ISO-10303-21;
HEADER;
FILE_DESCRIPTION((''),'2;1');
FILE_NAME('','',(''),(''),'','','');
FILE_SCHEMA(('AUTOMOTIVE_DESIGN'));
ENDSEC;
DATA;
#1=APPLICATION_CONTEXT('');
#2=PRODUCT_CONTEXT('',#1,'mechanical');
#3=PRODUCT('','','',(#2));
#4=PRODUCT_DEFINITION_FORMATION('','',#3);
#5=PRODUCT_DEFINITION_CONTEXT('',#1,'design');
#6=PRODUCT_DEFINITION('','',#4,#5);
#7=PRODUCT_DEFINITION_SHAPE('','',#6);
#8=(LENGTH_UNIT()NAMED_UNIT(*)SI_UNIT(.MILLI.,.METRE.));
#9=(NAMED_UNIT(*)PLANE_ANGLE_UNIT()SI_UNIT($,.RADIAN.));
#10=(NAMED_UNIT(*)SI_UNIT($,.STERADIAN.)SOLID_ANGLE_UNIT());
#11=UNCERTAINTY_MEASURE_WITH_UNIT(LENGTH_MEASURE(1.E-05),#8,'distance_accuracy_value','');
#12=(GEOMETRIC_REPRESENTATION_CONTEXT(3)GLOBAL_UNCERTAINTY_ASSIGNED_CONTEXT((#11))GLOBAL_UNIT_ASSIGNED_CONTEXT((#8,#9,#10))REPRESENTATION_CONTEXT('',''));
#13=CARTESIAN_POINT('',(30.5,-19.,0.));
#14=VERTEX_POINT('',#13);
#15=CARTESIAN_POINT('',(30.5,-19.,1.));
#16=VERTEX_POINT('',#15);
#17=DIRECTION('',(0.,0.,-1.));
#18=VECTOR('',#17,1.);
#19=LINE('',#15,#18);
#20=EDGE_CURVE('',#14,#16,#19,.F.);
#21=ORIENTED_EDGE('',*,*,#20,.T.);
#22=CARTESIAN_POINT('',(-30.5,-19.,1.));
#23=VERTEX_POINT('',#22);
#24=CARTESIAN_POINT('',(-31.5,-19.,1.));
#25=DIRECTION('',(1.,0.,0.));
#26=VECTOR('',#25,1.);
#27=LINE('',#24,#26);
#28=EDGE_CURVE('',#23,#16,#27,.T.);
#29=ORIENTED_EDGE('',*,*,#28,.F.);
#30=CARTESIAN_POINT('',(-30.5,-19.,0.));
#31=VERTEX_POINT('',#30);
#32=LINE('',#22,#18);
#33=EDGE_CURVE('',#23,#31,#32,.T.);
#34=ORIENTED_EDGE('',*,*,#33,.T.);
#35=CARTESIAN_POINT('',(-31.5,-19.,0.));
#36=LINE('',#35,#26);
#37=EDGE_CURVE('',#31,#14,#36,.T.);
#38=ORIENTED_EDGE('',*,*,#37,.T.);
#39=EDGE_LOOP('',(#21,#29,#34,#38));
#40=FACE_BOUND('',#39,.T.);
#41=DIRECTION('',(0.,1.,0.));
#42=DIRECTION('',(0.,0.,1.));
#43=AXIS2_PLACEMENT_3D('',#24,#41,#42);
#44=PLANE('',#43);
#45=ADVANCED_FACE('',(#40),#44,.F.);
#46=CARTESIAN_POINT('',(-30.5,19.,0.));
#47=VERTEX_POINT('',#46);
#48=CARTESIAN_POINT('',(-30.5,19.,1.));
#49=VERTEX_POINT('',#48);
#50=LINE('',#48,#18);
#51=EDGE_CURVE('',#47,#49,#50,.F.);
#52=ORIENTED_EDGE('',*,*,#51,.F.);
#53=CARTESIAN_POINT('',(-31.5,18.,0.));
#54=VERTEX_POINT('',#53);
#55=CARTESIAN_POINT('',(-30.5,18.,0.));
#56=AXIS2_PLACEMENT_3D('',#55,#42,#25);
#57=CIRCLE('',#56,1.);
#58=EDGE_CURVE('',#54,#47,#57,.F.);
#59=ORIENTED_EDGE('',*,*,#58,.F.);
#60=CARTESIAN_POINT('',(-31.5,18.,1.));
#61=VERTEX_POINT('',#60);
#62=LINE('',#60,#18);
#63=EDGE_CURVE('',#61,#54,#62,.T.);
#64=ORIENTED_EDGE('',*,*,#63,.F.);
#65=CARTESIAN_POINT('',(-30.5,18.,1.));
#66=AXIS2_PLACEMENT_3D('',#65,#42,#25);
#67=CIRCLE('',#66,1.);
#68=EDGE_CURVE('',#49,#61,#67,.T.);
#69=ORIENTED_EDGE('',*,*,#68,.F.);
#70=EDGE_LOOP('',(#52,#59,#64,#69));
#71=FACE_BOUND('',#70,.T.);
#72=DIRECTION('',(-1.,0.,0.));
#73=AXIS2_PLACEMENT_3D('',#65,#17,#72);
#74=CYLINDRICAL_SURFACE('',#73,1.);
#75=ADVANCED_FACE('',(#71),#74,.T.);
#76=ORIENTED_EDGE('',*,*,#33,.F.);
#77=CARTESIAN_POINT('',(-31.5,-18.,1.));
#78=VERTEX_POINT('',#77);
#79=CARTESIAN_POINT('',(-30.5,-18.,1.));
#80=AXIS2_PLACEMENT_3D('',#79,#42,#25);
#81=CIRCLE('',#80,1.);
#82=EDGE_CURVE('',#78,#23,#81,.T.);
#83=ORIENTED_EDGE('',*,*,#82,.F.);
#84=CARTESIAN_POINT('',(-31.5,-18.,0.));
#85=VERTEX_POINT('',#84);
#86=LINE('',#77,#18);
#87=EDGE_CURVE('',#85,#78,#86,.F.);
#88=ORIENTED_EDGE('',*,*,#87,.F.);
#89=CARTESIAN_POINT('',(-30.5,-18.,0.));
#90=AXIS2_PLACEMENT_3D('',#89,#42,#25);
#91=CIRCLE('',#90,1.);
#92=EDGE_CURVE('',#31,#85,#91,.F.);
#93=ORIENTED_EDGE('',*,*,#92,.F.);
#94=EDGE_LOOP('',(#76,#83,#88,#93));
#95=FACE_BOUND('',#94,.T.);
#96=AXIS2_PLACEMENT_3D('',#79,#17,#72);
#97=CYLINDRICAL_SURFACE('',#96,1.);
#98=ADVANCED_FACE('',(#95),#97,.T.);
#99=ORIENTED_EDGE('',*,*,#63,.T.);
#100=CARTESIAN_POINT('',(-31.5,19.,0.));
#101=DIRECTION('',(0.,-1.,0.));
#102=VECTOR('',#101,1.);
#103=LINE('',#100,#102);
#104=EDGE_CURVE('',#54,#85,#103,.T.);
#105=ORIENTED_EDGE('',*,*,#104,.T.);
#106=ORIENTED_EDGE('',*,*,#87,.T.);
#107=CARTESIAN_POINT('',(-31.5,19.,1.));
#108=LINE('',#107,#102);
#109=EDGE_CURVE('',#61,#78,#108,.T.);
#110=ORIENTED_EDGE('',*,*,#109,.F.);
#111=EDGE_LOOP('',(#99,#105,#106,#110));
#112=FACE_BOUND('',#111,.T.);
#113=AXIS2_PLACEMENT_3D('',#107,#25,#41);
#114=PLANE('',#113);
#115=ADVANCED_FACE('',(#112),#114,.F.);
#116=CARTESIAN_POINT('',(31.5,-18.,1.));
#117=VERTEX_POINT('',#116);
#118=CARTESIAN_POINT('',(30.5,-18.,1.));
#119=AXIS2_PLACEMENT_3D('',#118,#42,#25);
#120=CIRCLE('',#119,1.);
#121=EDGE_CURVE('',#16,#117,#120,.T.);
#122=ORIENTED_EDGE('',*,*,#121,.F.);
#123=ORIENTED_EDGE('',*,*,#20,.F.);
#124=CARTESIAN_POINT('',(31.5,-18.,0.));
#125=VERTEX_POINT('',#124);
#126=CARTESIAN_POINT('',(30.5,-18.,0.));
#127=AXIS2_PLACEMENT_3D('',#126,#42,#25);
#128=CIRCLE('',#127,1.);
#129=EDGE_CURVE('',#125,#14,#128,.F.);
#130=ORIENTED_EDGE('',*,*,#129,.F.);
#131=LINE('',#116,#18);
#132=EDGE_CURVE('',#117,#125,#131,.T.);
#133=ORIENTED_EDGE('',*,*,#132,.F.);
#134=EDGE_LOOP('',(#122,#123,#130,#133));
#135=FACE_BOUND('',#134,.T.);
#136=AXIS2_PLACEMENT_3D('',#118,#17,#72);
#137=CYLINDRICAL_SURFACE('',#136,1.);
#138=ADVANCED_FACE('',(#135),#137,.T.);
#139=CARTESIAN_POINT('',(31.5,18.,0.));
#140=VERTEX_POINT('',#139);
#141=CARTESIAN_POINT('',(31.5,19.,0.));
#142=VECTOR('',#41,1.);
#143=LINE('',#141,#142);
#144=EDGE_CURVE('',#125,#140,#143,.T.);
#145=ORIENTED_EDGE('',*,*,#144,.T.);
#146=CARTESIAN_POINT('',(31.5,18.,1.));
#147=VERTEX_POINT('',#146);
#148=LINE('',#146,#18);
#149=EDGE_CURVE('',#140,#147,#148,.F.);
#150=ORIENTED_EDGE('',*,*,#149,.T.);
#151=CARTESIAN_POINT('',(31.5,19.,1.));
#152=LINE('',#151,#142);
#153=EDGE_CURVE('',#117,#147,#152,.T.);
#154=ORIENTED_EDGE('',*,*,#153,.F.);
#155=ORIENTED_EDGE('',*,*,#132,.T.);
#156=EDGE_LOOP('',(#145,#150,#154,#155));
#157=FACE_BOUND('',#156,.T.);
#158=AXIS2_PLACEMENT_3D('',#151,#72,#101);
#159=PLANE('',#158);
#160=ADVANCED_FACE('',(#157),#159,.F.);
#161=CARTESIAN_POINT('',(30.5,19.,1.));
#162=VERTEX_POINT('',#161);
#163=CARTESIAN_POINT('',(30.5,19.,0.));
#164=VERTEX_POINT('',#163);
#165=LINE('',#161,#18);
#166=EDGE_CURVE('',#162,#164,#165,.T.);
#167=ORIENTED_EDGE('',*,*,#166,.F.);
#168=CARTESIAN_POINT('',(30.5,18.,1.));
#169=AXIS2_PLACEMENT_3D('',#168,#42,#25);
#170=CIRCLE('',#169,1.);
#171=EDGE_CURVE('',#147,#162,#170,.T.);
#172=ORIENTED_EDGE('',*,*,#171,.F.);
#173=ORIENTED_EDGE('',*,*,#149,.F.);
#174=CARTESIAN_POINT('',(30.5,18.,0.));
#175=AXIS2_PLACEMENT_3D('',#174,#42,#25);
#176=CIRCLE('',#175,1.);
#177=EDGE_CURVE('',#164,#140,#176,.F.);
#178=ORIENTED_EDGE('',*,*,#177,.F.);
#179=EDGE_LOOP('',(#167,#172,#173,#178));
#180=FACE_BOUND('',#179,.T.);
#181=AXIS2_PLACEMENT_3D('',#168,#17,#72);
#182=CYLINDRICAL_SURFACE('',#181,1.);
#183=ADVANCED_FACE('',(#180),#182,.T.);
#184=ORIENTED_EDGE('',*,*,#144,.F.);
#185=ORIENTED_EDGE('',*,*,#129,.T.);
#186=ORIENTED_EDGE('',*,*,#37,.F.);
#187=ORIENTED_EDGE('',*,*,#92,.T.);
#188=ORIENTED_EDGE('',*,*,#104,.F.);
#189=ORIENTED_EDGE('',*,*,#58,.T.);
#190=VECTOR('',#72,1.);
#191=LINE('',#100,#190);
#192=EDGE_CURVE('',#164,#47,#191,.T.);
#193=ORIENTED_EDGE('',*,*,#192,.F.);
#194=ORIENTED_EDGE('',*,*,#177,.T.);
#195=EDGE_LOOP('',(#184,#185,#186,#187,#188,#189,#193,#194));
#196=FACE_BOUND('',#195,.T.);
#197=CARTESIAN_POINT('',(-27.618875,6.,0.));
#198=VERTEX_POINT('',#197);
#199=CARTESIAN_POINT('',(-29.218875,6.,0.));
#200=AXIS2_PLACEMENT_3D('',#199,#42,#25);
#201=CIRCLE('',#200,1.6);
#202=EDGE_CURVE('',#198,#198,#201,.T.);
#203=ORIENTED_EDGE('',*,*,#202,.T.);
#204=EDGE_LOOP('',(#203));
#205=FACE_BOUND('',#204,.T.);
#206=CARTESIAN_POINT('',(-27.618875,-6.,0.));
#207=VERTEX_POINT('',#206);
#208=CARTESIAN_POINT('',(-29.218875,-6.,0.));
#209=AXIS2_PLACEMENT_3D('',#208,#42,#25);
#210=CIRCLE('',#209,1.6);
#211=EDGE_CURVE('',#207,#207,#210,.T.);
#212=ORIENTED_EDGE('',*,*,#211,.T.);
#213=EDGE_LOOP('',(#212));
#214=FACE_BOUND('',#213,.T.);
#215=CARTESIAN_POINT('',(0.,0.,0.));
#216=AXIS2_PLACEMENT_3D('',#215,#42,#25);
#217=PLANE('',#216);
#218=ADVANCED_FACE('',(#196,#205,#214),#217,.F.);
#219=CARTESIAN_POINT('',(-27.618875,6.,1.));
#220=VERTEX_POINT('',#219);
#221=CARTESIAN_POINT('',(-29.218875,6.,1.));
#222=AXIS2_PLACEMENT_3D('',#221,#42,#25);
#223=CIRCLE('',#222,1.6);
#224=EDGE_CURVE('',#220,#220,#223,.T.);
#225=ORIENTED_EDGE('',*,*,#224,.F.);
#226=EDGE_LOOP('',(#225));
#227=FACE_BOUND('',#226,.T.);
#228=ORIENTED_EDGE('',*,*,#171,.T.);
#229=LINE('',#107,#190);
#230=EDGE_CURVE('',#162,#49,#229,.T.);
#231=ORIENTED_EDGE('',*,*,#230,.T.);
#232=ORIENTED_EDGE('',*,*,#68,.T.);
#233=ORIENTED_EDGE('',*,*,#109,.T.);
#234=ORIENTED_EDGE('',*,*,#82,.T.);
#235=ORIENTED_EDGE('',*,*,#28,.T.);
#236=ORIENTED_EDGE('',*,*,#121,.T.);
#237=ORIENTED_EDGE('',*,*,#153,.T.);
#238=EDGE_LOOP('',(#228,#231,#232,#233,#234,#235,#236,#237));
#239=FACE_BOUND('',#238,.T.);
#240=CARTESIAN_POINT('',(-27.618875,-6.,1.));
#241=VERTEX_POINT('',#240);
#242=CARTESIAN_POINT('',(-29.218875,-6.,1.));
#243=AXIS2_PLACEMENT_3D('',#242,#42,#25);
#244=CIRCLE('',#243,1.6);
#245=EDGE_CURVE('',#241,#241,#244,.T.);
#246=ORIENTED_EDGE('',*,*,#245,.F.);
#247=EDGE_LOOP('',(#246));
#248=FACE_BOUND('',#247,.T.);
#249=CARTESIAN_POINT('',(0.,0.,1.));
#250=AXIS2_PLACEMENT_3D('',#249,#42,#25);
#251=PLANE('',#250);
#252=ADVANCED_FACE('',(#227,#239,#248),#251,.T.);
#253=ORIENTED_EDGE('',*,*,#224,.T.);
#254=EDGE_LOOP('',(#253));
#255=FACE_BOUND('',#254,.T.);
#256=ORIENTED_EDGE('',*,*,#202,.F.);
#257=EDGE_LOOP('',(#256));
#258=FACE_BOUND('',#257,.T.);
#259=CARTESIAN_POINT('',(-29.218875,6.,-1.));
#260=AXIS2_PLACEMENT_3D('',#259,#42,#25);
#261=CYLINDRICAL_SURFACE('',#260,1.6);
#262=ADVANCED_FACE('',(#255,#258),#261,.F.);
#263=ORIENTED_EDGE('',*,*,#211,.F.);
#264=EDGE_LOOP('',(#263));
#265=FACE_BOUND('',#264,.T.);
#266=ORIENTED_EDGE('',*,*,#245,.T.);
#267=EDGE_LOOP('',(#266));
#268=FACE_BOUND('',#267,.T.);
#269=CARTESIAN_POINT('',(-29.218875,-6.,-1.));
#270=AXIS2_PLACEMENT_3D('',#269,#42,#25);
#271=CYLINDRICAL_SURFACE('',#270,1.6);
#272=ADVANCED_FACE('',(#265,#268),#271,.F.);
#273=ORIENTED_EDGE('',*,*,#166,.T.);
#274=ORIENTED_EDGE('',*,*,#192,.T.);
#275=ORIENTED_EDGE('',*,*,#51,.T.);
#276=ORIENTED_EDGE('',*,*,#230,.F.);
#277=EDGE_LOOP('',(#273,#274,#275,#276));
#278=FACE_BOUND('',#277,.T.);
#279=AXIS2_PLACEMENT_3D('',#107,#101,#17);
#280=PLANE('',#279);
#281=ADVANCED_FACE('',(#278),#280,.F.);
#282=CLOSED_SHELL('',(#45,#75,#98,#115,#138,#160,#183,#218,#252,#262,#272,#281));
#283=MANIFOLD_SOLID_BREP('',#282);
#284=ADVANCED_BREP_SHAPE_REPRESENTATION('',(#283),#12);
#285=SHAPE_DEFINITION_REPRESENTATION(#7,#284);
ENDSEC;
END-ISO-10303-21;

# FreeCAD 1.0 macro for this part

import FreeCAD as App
import Part
import Sketcher
from FreeCAD import Vector


def edges_at(feature, points):
    """Names of the edges that pass closest to the given points."""
    edges = feature.Shape.Edges
    near = lambda p: min(range(len(edges)), key=lambda i: edges[i].distToShape(Part.Vertex(*p))[0])
    return sorted({f"Edge{near(p) + 1}" for p in points})


def add_polygon(sketch, points):
    """Adds a closed chain of lines whose ends are joined by coincident constraints."""
    first, n = sketch.GeometryCount, len(points)
    for a, b in zip(points, points[1:] + points[:1]):
        sketch.addGeometry(Part.LineSegment(App.Vector(*a, 0), App.Vector(*b, 0)), False)
    for i in range(n):
        sketch.addConstraint(Sketcher.Constraint("Coincident", first + i, 2, first + (i + 1) % n, 1))

doc = App.newDocument("Part")
body = doc.addObject("PartDesign::Body", "Body")

sketch1 = doc.addObject("Sketcher::SketchObject", "Sketch")
body.addObject(sketch1)
sketch1.AttachmentSupport = (doc.XY_Plane, [""])
sketch1.MapMode = "FlatFace"
add_polygon(sketch1, [(-32, 19), (-32, -19), (32, -19), (32, 19)])
sketch1.addConstraint([
    Sketcher.Constraint("Vertical", 0),
    Sketcher.Constraint("Horizontal", 1),
    Sketcher.Constraint("Vertical", 2),
    Sketcher.Constraint("Horizontal", 3),
    Sketcher.Constraint("Symmetric", 0, 2, 2, 2, -1, 1),
    Sketcher.Constraint("DistanceX", 1, 1, 1, 2, 63.0),
    Sketcher.Constraint("DistanceY", 0, 2, 0, 1, 38.0),
])
pad1 = doc.addObject("PartDesign::Pad", "Pad")
body.addObject(pad1)
pad1.Profile = sketch1
pad1.Length = 1
doc.recompute()

fillet = doc.addObject("PartDesign::Fillet", "Fillet")
body.addObject(fillet)
fillet.Base = (pad1, edges_at(pad1, [
    (31.5, -19, 0.5),
    (-31.5, -19, 0.5),
    (-31.5, 19, 0.5),
    (31.5, 19, 0.5),
]))
fillet.Radius = 1

sketch2 = doc.addObject("Sketcher::SketchObject", "Sketch001")
body.addObject(sketch2)
sketch2.AttachmentSupport = (doc.XY_Plane, [""])
sketch2.MapMode = "FlatFace"
sketch2.AttachmentOffset = App.Placement(Vector(0, 0, 1), App.Rotation())
sketch2.addGeometry([
    Part.Circle(Vector(-29.2, -6, 0), Vector(0, 0, 1), 1.6),
    Part.Circle(Vector(-29.2, 6, 0), Vector(0, 0, 1), 1.6),
], False)
sketch2.addConstraint([
    Sketcher.Constraint("Equal", 0, 1),
    Sketcher.Constraint("Symmetric", 0, 3, 1, 3, -1),
    Sketcher.Constraint("Diameter", 0, 3.2),
    Sketcher.Constraint("DistanceY", 0, 3, -1, 1, 6.0),
    Sketcher.Constraint("DistanceX", 0, 3, -1, 1, 29.218875),
])
pocket1 = doc.addObject("PartDesign::Pocket", "Pocket")
body.addObject(pocket1)
pocket1.Profile = sketch2
pocket1.Length = 2

doc.recompute()
